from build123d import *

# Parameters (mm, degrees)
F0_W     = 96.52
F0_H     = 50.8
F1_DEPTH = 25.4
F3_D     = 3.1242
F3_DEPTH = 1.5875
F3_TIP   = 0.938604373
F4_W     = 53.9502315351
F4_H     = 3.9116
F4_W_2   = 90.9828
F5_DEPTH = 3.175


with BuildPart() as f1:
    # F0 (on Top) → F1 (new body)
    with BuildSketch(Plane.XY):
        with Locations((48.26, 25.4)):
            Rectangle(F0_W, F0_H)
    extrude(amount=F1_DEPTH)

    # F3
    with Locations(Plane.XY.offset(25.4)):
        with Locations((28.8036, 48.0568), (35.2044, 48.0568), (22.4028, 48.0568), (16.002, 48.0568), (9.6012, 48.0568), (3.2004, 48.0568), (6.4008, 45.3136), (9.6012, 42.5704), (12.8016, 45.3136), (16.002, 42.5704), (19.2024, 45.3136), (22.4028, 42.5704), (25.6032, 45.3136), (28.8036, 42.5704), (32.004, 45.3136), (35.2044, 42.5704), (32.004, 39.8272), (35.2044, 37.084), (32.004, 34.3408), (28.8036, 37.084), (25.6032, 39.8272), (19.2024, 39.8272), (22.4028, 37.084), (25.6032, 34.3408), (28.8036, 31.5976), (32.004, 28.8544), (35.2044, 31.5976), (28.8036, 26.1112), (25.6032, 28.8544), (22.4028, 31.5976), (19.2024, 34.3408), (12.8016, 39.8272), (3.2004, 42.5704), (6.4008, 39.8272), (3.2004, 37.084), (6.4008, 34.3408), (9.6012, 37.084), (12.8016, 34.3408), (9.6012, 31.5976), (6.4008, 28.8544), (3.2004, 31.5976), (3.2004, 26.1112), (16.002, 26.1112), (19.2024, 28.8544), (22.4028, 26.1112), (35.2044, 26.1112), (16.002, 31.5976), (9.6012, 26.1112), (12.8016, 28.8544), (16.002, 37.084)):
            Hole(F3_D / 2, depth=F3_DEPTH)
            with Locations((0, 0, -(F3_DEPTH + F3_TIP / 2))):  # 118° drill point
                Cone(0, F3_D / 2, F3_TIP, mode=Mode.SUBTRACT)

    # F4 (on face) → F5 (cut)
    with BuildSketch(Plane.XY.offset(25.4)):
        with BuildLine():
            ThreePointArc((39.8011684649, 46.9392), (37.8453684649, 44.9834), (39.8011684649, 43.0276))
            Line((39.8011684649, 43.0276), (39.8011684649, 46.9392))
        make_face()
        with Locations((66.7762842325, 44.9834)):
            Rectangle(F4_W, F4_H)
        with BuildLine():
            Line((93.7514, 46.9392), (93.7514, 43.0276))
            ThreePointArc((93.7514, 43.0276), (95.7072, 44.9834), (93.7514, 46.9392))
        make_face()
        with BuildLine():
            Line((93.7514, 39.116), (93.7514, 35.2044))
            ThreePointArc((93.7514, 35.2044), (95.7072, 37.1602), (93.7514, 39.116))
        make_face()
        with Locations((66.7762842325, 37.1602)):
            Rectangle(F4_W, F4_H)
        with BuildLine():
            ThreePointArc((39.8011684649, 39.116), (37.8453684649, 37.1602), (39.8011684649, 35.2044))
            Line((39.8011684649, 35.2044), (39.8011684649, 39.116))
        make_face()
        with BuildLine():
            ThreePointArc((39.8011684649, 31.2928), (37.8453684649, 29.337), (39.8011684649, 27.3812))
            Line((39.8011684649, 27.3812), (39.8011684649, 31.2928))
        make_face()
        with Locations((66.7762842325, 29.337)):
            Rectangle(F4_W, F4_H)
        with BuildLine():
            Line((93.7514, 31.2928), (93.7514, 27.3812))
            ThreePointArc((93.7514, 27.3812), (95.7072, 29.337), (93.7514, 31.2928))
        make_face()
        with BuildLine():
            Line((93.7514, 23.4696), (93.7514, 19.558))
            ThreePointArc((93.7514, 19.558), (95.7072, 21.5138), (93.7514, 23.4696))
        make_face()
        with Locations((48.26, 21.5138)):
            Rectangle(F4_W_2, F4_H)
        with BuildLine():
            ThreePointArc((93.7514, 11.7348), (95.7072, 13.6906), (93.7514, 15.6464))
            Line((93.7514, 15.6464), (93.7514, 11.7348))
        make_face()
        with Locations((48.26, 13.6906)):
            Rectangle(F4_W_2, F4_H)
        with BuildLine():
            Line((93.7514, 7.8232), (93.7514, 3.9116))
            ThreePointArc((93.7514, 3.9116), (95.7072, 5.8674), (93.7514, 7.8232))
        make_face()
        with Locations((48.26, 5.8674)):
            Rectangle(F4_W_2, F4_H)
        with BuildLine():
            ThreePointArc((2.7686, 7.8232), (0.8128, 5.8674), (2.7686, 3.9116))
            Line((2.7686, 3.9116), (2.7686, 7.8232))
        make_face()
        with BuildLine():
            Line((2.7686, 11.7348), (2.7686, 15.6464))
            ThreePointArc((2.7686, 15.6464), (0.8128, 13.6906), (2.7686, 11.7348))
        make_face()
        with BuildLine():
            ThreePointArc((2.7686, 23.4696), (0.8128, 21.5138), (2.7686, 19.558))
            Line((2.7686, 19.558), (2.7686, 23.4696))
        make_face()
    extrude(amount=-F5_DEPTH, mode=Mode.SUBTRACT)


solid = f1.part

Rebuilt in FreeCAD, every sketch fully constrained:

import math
import FreeCAD as App
import Part
import Sketcher

V = App.Vector
Q = App.Units.Quantity


def add_polygon(sketch, points):
    """Adds a closed chain of lines whose ends are joined by coincident constraints."""
    first, n = sketch.GeometryCount, len(points)
    for a, b in zip(points, points[1:] + points[:1]):
        sketch.addGeometry(Part.LineSegment(App.Vector(*a, 0), App.Vector(*b, 0)), False)
    for i in range(n):
        sketch.addConstraint(Sketcher.Constraint("Coincident", first + i, 2, first + (i + 1) % n, 1))

doc = App.newDocument("Part")
body = doc.addObject("PartDesign::Body", "Body")

# Sketch on XY plane
sketch1 = doc.addObject("Sketcher::SketchObject", "Sketch")
body.addObject(sketch1)
sketch1.AttachmentSupport = (doc.XY_Plane, [""])
sketch1.MapMode = "FlatFace"
add_polygon(sketch1, [(0, 51), (0, 0), (97, 0), (97, 51)])  # lines 0-3
sketch1.addConstraint(Sketcher.Constraint("Vertical", 0))
sketch1.addConstraint(Sketcher.Constraint("Horizontal", 1))
sketch1.addConstraint(Sketcher.Constraint("Vertical", 2))
sketch1.addConstraint(Sketcher.Constraint("Horizontal", 3))
sketch1.addConstraint(Sketcher.Constraint("Coincident", 0, 2, -1, 1))
sketch1.addConstraint(Sketcher.Constraint("DistanceY", 0, 2, 0, 1, Q("2 in")))
sketch1.addConstraint(Sketcher.Constraint("DistanceX", 1, 1, 1, 2, Q("3.8 in")))
pad1 = doc.addObject("PartDesign::Pad", "Pad")
body.addObject(pad1)
pad1.Profile = sketch1
pad1.Length = Q("1 in")

# Sketch on XY plane
sketch2 = doc.addObject("Sketcher::SketchObject", "Sketch001")
body.addObject(sketch2)
sketch2.AttachmentSupport = (doc.XY_Plane, [""])
sketch2.MapMode = "FlatFace"
sketch2.AttachmentOffset = App.Placement(V(0, 0, 1 * 25.4), App.Rotation())
sketch2.addGeometry(Part.Circle(V(28.8, 48.1, 0), V(0, 0, 1), 1.6), False)
sketch2.addGeometry(Part.Circle(V(35.2, 48.1, 0), V(0, 0, 1), 1.6), False)
sketch2.addGeometry(Part.Circle(V(22.4, 48.1, 0), V(0, 0, 1), 1.6), False)
sketch2.addGeometry(Part.Circle(V(16, 48.1, 0), V(0, 0, 1), 1.6), False)
sketch2.addGeometry(Part.Circle(V(9.6, 48.1, 0), V(0, 0, 1), 1.6), False)
sketch2.addGeometry(Part.Circle(V(3.2, 48.1, 0), V(0, 0, 1), 1.6), False)
sketch2.addGeometry(Part.Circle(V(6.4, 45.3, 0), V(0, 0, 1), 1.6), False)
sketch2.addGeometry(Part.Circle(V(9.6, 42.6, 0), V(0, 0, 1), 1.6), False)
sketch2.addGeometry(Part.Circle(V(12.8, 45.3, 0), V(0, 0, 1), 1.6), False)
sketch2.addGeometry(Part.Circle(V(16, 42.6, 0), V(0, 0, 1), 1.6), False)
sketch2.addGeometry(Part.Circle(V(19.2, 45.3, 0), V(0, 0, 1), 1.6), False)
sketch2.addGeometry(Part.Circle(V(22.4, 42.6, 0), V(0, 0, 1), 1.6), False)
sketch2.addGeometry(Part.Circle(V(25.6, 45.3, 0), V(0, 0, 1), 1.6), False)
sketch2.addGeometry(Part.Circle(V(28.8, 42.6, 0), V(0, 0, 1), 1.6), False)
sketch2.addGeometry(Part.Circle(V(32, 45.3, 0), V(0, 0, 1), 1.6), False)
sketch2.addGeometry(Part.Circle(V(35.2, 42.6, 0), V(0, 0, 1), 1.6), False)
sketch2.addGeometry(Part.Circle(V(32, 39.8, 0), V(0, 0, 1), 1.6), False)
sketch2.addGeometry(Part.Circle(V(35.2, 37.1, 0), V(0, 0, 1), 1.6), False)
sketch2.addGeometry(Part.Circle(V(32, 34.3, 0), V(0, 0, 1), 1.6), False)
sketch2.addGeometry(Part.Circle(V(28.8, 37.1, 0), V(0, 0, 1), 1.6), False)
sketch2.addGeometry(Part.Circle(V(25.6, 39.8, 0), V(0, 0, 1), 1.6), False)
sketch2.addGeometry(Part.Circle(V(19.2, 39.8, 0), V(0, 0, 1), 1.6), False)
sketch2.addGeometry(Part.Circle(V(22.4, 37.1, 0), V(0, 0, 1), 1.6), False)
sketch2.addGeometry(Part.Circle(V(25.6, 34.3, 0), V(0, 0, 1), 1.6), False)
sketch2.addGeometry(Part.Circle(V(28.8, 31.6, 0), V(0, 0, 1), 1.6), False)
sketch2.addGeometry(Part.Circle(V(32, 28.9, 0), V(0, 0, 1), 1.6), False)
sketch2.addGeometry(Part.Circle(V(35.2, 31.6, 0), V(0, 0, 1), 1.6), False)
sketch2.addGeometry(Part.Circle(V(28.8, 26.1, 0), V(0, 0, 1), 1.6), False)
sketch2.addGeometry(Part.Circle(V(25.6, 28.9, 0), V(0, 0, 1), 1.6), False)
sketch2.addGeometry(Part.Circle(V(22.4, 31.6, 0), V(0, 0, 1), 1.6), False)
sketch2.addGeometry(Part.Circle(V(19.2, 34.3, 0), V(0, 0, 1), 1.6), False)
sketch2.addGeometry(Part.Circle(V(12.8, 39.8, 0), V(0, 0, 1), 1.6), False)
sketch2.addGeometry(Part.Circle(V(3.2, 42.6, 0), V(0, 0, 1), 1.6), False)
sketch2.addGeometry(Part.Circle(V(6.4, 39.8, 0), V(0, 0, 1), 1.6), False)
sketch2.addGeometry(Part.Circle(V(3.2, 37.1, 0), V(0, 0, 1), 1.6), False)
sketch2.addGeometry(Part.Circle(V(6.4, 34.3, 0), V(0, 0, 1), 1.6), False)
sketch2.addGeometry(Part.Circle(V(9.6, 37.1, 0), V(0, 0, 1), 1.6), False)
sketch2.addGeometry(Part.Circle(V(12.8, 34.3, 0), V(0, 0, 1), 1.6), False)
sketch2.addGeometry(Part.Circle(V(9.6, 31.6, 0), V(0, 0, 1), 1.6), False)
sketch2.addGeometry(Part.Circle(V(6.4, 28.9, 0), V(0, 0, 1), 1.6), False)
sketch2.addGeometry(Part.Circle(V(3.2, 31.6, 0), V(0, 0, 1), 1.6), False)
sketch2.addGeometry(Part.Circle(V(3.2, 26.1, 0), V(0, 0, 1), 1.6), False)
sketch2.addGeometry(Part.Circle(V(16, 26.1, 0), V(0, 0, 1), 1.6), False)
sketch2.addGeometry(Part.Circle(V(19.2, 28.9, 0), V(0, 0, 1), 1.6), False)
sketch2.addGeometry(Part.Circle(V(22.4, 26.1, 0), V(0, 0, 1), 1.6), False)
sketch2.addGeometry(Part.Circle(V(35.2, 26.1, 0), V(0, 0, 1), 1.6), False)
sketch2.addGeometry(Part.Circle(V(16, 31.6, 0), V(0, 0, 1), 1.6), False)
sketch2.addGeometry(Part.Circle(V(9.6, 26.1, 0), V(0, 0, 1), 1.6), False)
sketch2.addGeometry(Part.Circle(V(12.8, 28.9, 0), V(0, 0, 1), 1.6), False)
sketch2.addGeometry(Part.Circle(V(16, 37.1, 0), V(0, 0, 1), 1.6), False)
sketch2.addConstraint(Sketcher.Constraint("Equal", 0, 1))
sketch2.addConstraint(Sketcher.Constraint("Equal", 1, 2))
sketch2.addConstraint(Sketcher.Constraint("Equal", 2, 3))
sketch2.addConstraint(Sketcher.Constraint("Equal", 3, 4))
sketch2.addConstraint(Sketcher.Constraint("Equal", 4, 5))
sketch2.addConstraint(Sketcher.Constraint("Equal", 5, 6))
sketch2.addConstraint(Sketcher.Constraint("Equal", 6, 7))
sketch2.addConstraint(Sketcher.Constraint("Equal", 7, 8))
sketch2.addConstraint(Sketcher.Constraint("Equal", 8, 9))
sketch2.addConstraint(Sketcher.Constraint("Equal", 9, 10))
sketch2.addConstraint(Sketcher.Constraint("Equal", 10, 11))
sketch2.addConstraint(Sketcher.Constraint("Equal", 11, 12))
sketch2.addConstraint(Sketcher.Constraint("Equal", 12, 13))
sketch2.addConstraint(Sketcher.Constraint("Equal", 13, 14))
sketch2.addConstraint(Sketcher.Constraint("Equal", 14, 15))
sketch2.addConstraint(Sketcher.Constraint("Equal", 15, 16))
sketch2.addConstraint(Sketcher.Constraint("Equal", 16, 17))
sketch2.addConstraint(Sketcher.Constraint("Equal", 17, 18))
sketch2.addConstraint(Sketcher.Constraint("Equal", 18, 19))
sketch2.addConstraint(Sketcher.Constraint("Equal", 19, 20))
sketch2.addConstraint(Sketcher.Constraint("Equal", 20, 21))
sketch2.addConstraint(Sketcher.Constraint("Equal", 21, 22))
sketch2.addConstraint(Sketcher.Constraint("Equal", 22, 23))
sketch2.addConstraint(Sketcher.Constraint("Equal", 23, 24))
sketch2.addConstraint(Sketcher.Constraint("Equal", 24, 25))
sketch2.addConstraint(Sketcher.Constraint("Equal", 25, 26))
sketch2.addConstraint(Sketcher.Constraint("Equal", 26, 27))
sketch2.addConstraint(Sketcher.Constraint("Equal", 27, 28))
sketch2.addConstraint(Sketcher.Constraint("Equal", 28, 29))
sketch2.addConstraint(Sketcher.Constraint("Equal", 29, 30))
sketch2.addConstraint(Sketcher.Constraint("Equal", 30, 31))
sketch2.addConstraint(Sketcher.Constraint("Equal", 31, 32))
sketch2.addConstraint(Sketcher.Constraint("Equal", 32, 33))
sketch2.addConstraint(Sketcher.Constraint("Equal", 33, 34))
sketch2.addConstraint(Sketcher.Constraint("Equal", 34, 35))
sketch2.addConstraint(Sketcher.Constraint("Equal", 35, 36))
sketch2.addConstraint(Sketcher.Constraint("Equal", 36, 37))
sketch2.addConstraint(Sketcher.Constraint("Equal", 37, 38))
sketch2.addConstraint(Sketcher.Constraint("Equal", 38, 39))
sketch2.addConstraint(Sketcher.Constraint("Equal", 39, 40))
sketch2.addConstraint(Sketcher.Constraint("Equal", 40, 41))
sketch2.addConstraint(Sketcher.Constraint("Equal", 41, 42))
sketch2.addConstraint(Sketcher.Constraint("Equal", 42, 43))
sketch2.addConstraint(Sketcher.Constraint("Equal", 43, 44))
sketch2.addConstraint(Sketcher.Constraint("Equal", 44, 45))
sketch2.addConstraint(Sketcher.Constraint("Equal", 45, 46))
sketch2.addConstraint(Sketcher.Constraint("Equal", 46, 47))
sketch2.addConstraint(Sketcher.Constraint("Equal", 47, 48))
sketch2.addConstraint(Sketcher.Constraint("Equal", 48, 49))
sketch2.addConstraint(Sketcher.Constraint("Horizontal", 0, 3, 1, 3))
sketch2.addConstraint(Sketcher.Constraint("Horizontal", 1, 3, 2, 3))
sketch2.addConstraint(Sketcher.Constraint("Horizontal", 2, 3, 3, 3))
sketch2.addConstraint(Sketcher.Constraint("Horizontal", 3, 3, 4, 3))
sketch2.addConstraint(Sketcher.Constraint("Horizontal", 4, 3, 5, 3))
sketch2.addConstraint(Sketcher.Constraint("Horizontal", 6, 3, 8, 3))
sketch2.addConstraint(Sketcher.Constraint("Horizontal", 7, 3, 9, 3))
sketch2.addConstraint(Sketcher.Constraint("Horizontal", 8, 3, 10, 3))
sketch2.addConstraint(Sketcher.Constraint("Horizontal", 9, 3, 11, 3))
sketch2.addConstraint(Sketcher.Constraint("Horizontal", 10, 3, 12, 3))
sketch2.addConstraint(Sketcher.Constraint("Horizontal", 11, 3, 13, 3))
sketch2.addConstraint(Sketcher.Constraint("Horizontal", 12, 3, 14, 3))
sketch2.addConstraint(Sketcher.Constraint("Horizontal", 13, 3, 15, 3))
sketch2.addConstraint(Sketcher.Constraint("Horizontal", 17, 3, 19, 3))
sketch2.addConstraint(Sketcher.Constraint("Horizontal", 16, 3, 20, 3))
sketch2.addConstraint(Sketcher.Constraint("Horizontal", 20, 3, 21, 3))
sketch2.addConstraint(Sketcher.Constraint("Horizontal", 19, 3, 22, 3))
sketch2.addConstraint(Sketcher.Constraint("Horizontal", 18, 3, 23, 3))
sketch2.addConstraint(Sketcher.Constraint("Horizontal", 24, 3, 26, 3))
sketch2.addConstraint(Sketcher.Constraint("Horizontal", 25, 3, 28, 3))
sketch2.addConstraint(Sketcher.Constraint("Horizontal", 26, 3, 29, 3))
sketch2.addConstraint(Sketcher.Constraint("Horizontal", 23, 3, 30, 3))
sketch2.addConstraint(Sketcher.Constraint("Horizontal", 21, 3, 31, 3))
sketch2.addConstraint(Sketcher.Constraint("Horizontal", 15, 3, 32, 3))
sketch2.addConstraint(Sketcher.Constraint("Horizontal", 31, 3, 33, 3))
sketch2.addConstraint(Sketcher.Constraint("Horizontal", 22, 3, 34, 3))
sketch2.addConstraint(Sketcher.Constraint("Horizontal", 30, 3, 35, 3))
sketch2.addConstraint(Sketcher.Constraint("Horizontal", 34, 3, 36, 3))
sketch2.addConstraint(Sketcher.Constraint("Horizontal", 35, 3, 37, 3))
sketch2.addConstraint(Sketcher.Constraint("Horizontal", 29, 3, 38, 3))
sketch2.addConstraint(Sketcher.Constraint("Horizontal", 28, 3, 39, 3))
sketch2.addConstraint(Sketcher.Constraint("Horizontal", 38, 3, 40, 3))
sketch2.addConstraint(Sketcher.Constraint("Horizontal", 27, 3, 41, 3))
sketch2.addConstraint(Sketcher.Constraint("Horizontal", 41, 3, 42, 3))
sketch2.addConstraint(Sketcher.Constraint("Horizontal", 39, 3, 43, 3))
sketch2.addConstraint(Sketcher.Constraint("Horizontal", 42, 3, 44, 3))
sketch2.addConstraint(Sketcher.Constraint("Horizontal", 44, 3, 45, 3))
sketch2.addConstraint(Sketcher.Constraint("Horizontal", 40, 3, 46, 3))
sketch2.addConstraint(Sketcher.Constraint("Horizontal", 45, 3, 47, 3))
sketch2.addConstraint(Sketcher.Constraint("Horizontal", 43, 3, 48, 3))
sketch2.addConstraint(Sketcher.Constraint("Horizontal", 36, 3, 49, 3))
sketch2.addConstraint(Sketcher.Constraint("Vertical", 4, 3, 7, 3))
sketch2.addConstraint(Sketcher.Constraint("Vertical", 3, 3, 9, 3))
sketch2.addConstraint(Sketcher.Constraint("Vertical", 2, 3, 11, 3))
sketch2.addConstraint(Sketcher.Constraint("Vertical", 0, 3, 13, 3))
sketch2.addConstraint(Sketcher.Constraint("Vertical", 1, 3, 15, 3))
sketch2.addConstraint(Sketcher.Constraint("Vertical", 14, 3, 16, 3))
sketch2.addConstraint(Sketcher.Constraint("Vertical", 15, 3, 17, 3))
sketch2.addConstraint(Sketcher.Constraint("Vertical", 16, 3, 18, 3))
sketch2.addConstraint(Sketcher.Constraint("Vertical", 13, 3, 19, 3))
sketch2.addConstraint(Sketcher.Constraint("Vertical", 12, 3, 20, 3))
sketch2.addConstraint(Sketcher.Constraint("Vertical", 10, 3, 21, 3))
sketch2.addConstraint(Sketcher.Constraint("Vertical", 11, 3, 22, 3))
sketch2.addConstraint(Sketcher.Constraint("Vertical", 20, 3, 23, 3))
sketch2.addConstraint(Sketcher.Constraint("Vertical", 19, 3, 24, 3))
sketch2.addConstraint(Sketcher.Constraint("Vertical", 18, 3, 25, 3))
sketch2.addConstraint(Sketcher.Constraint("Vertical", 17, 3, 26, 3))
sketch2.addConstraint(Sketcher.Constraint("Vertical", 24, 3, 27, 3))
sketch2.addConstraint(Sketcher.Constraint("Vertical", 23, 3, 28, 3))
sketch2.addConstraint(Sketcher.Constraint("Vertical", 22, 3, 29, 3))
sketch2.addConstraint(Sketcher.Constraint("Vertical", 21, 3, 30, 3))
sketch2.addConstraint(Sketcher.Constraint("Vertical", 8, 3, 31, 3))
sketch2.addConstraint(Sketcher.Constraint("Vertical", 5, 3, 32, 3))
sketch2.addConstraint(Sketcher.Constraint("Vertical", 6, 3, 33, 3))
sketch2.addConstraint(Sketcher.Constraint("Vertical", 32, 3, 34, 3))
sketch2.addConstraint(Sketcher.Constraint("Vertical", 33, 3, 35, 3))
sketch2.addConstraint(Sketcher.Constraint("Vertical", 7, 3, 36, 3))
sketch2.addConstraint(Sketcher.Constraint("Vertical", 31, 3, 37, 3))
sketch2.addConstraint(Sketcher.Constraint("Vertical", 36, 3, 38, 3))
sketch2.addConstraint(Sketcher.Constraint("Vertical", 35, 3, 39, 3))
sketch2.addConstraint(Sketcher.Constraint("Vertical", 34, 3, 40, 3))
sketch2.addConstraint(Sketcher.Constraint("Vertical", 40, 3, 41, 3))
sketch2.addConstraint(Sketcher.Constraint("Vertical", 9, 3, 42, 3))
sketch2.addConstraint(Sketcher.Constraint("Vertical", 30, 3, 43, 3))
sketch2.addConstraint(Sketcher.Constraint("Vertical", 29, 3, 44, 3))
sketch2.addConstraint(Sketcher.Constraint("Vertical", 26, 3, 45, 3))
sketch2.addConstraint(Sketcher.Constraint("Vertical", 42, 3, 46, 3))
sketch2.addConstraint(Sketcher.Constraint("Vertical", 38, 3, 47, 3))
sketch2.addConstraint(Sketcher.Constraint("Vertical", 37, 3, 48, 3))
sketch2.addConstraint(Sketcher.Constraint("Vertical", 46, 3, 49, 3))
sketch2.addConstraint(Sketcher.Constraint("Diameter", 0, Q("0.123 in")))
sketch2.addConstraint(Sketcher.Constraint("DistanceX", -1, 1, 3, 3, Q("0.63 in")))
sketch2.addConstraint(Sketcher.Constraint("DistanceX", -1, 1, 14, 3, Q("1.26 in")))
sketch2.addConstraint(Sketcher.Constraint("DistanceY", -1, 1, 17, 3, Q("1.46 in")))
sketch2.addConstraint(Sketcher.Constraint("DistanceX", 5, 3, 1, 3, Q("1.26 in")))
sketch2.addConstraint(Sketcher.Constraint("DistanceX", 6, 3, 2, 3, Q("0.63 in")))
sketch2.addConstraint(Sketcher.Constraint("DistanceX", -1, 1, 0, 3, Q("1.134 in")))
sketch2.addConstraint(Sketcher.Constraint("DistanceY", -1, 1, 0, 3, Q("1.892 in")))
sketch2.addConstraint(Sketcher.Constraint("DistanceX", -1, 1, 1, 3, Q("1.386 in")))
sketch2.addConstraint(Sketcher.Constraint("DistanceX", -1, 1, 2, 3, Q("0.882 in")))
sketch2.addConstraint(Sketcher.Constraint("DistanceX", -1, 1, 4, 3, Q("0.378 in")))
sketch2.addConstraint(Sketcher.Constraint("DistanceY", -1, 1, 6, 3, Q("1.784 in")))
sketch2.addConstraint(Sketcher.Constraint("DistanceY", -1, 1, 7, 3, Q("1.676 in")))
sketch2.addConstraint(Sketcher.Constraint("DistanceX", -1, 1, 8, 3, Q("0.504 in")))
sketch2.addConstraint(Sketcher.Constraint("DistanceX", -1, 1, 10, 3, Q("0.756 in")))
sketch2.addConstraint(Sketcher.Constraint("DistanceX", -1, 1, 12, 3, Q("1.008 in")))
sketch2.addConstraint(Sketcher.Constraint("DistanceY", -1, 1, 16, 3, Q("1.568 in")))
sketch2.addConstraint(Sketcher.Constraint("DistanceY", -1, 1, 18, 3, Q("1.352 in")))
sketch2.addConstraint(Sketcher.Constraint("DistanceY", -1, 1, 24, 3, Q("1.244 in")))
sketch2.addConstraint(Sketcher.Constraint("DistanceY", -1, 1, 25, 3, Q("1.136 in")))
sketch2.addConstraint(Sketcher.Constraint("DistanceY", -1, 1, 27, 3, Q("1.028 in")))
doc.recompute()
hole = doc.addObject("PartDesign::Hole", "Hole")
body.addObject(hole)
hole.Profile = sketch2
hole.ThreadType = "None"
hole.Diameter = Q("0.123 in")
hole.DepthType = "Dimension"
hole.Depth = Q("0.0625 in")
hole.DrillPoint = "Angled"
hole.DrillPointAngle = 118

# Sketch on XY plane
sketch3 = doc.addObject("Sketcher::SketchObject", "Sketch002")
body.addObject(sketch3)
sketch3.AttachmentSupport = (doc.XY_Plane, [""])
sketch3.MapMode = "FlatFace"
sketch3.AttachmentOffset = App.Placement(V(0, 0, 1 * 25.4), App.Rotation())
sketch3.addGeometry(Part.ArcOfCircle(Part.Circle(V(39.8, 45, 0), V(0, 0, 1), 2), math.radians(90), math.radians(270)), False)
sketch3.addGeometry(Part.LineSegment(V(39.8, 43, 0), V(93.8, 43, 0)), False)
sketch3.addGeometry(Part.ArcOfCircle(Part.Circle(V(93.8, 45, 0), V(0, 0, 1), 2), math.radians(-90), math.radians(90)), False)
sketch3.addGeometry(Part.LineSegment(V(93.8, 46.9, 0), V(39.8, 46.9, 0)), False)
sketch3.addGeometry(Part.ArcOfCircle(Part.Circle(V(93.8, 37.2, 0), V(0, 0, 1), 2), math.radians(-90), math.radians(90)), False)
sketch3.addGeometry(Part.LineSegment(V(93.8, 39.1, 0), V(39.8, 39.1, 0)), False)
sketch3.addGeometry(Part.ArcOfCircle(Part.Circle(V(39.8, 37.2, 0), V(0, 0, 1), 2), math.radians(90), math.radians(270)), False)
sketch3.addGeometry(Part.LineSegment(V(39.8, 35.2, 0), V(93.8, 35.2, 0)), False)
sketch3.addGeometry(Part.ArcOfCircle(Part.Circle(V(39.8, 29.3, 0), V(0, 0, 1), 2), math.radians(90), math.radians(270)), False)
sketch3.addGeometry(Part.LineSegment(V(39.8, 27.4, 0), V(93.8, 27.4, 0)), False)
sketch3.addGeometry(Part.ArcOfCircle(Part.Circle(V(93.8, 29.3, 0), V(0, 0, 1), 2), math.radians(-90), math.radians(90)), False)
sketch3.addGeometry(Part.LineSegment(V(93.8, 31.3, 0), V(39.8, 31.3, 0)), False)
sketch3.addGeometry(Part.ArcOfCircle(Part.Circle(V(93.8, 21.5, 0), V(0, 0, 1), 2), math.radians(-90), math.radians(90)), False)
sketch3.addGeometry(Part.LineSegment(V(93.8, 23.5, 0), V(2.8, 23.5, 0)), False)
sketch3.addGeometry(Part.ArcOfCircle(Part.Circle(V(2.8, 21.5, 0), V(0, 0, 1), 2), math.radians(90), math.radians(270)), False)
sketch3.addGeometry(Part.LineSegment(V(2.8, 19.6, 0), V(93.8, 19.6, 0)), False)
sketch3.addGeometry(Part.ArcOfCircle(Part.Circle(V(93.8, 13.7, 0), V(0, 0, 1), 2), math.radians(-90), math.radians(90)), False)
sketch3.addGeometry(Part.LineSegment(V(93.8, 15.6, 0), V(2.8, 15.6, 0)), False)
sketch3.addGeometry(Part.ArcOfCircle(Part.Circle(V(2.8, 13.7, 0), V(0, 0, 1), 2), math.radians(90), math.radians(270)), False)
sketch3.addGeometry(Part.LineSegment(V(2.8, 11.7, 0), V(93.8, 11.7, 0)), False)
sketch3.addGeometry(Part.ArcOfCircle(Part.Circle(V(93.8, 5.9, 0), V(0, 0, 1), 2), math.radians(-90), math.radians(90)), False)
sketch3.addGeometry(Part.LineSegment(V(93.8, 7.8, 0), V(2.8, 7.8, 0)), False)
sketch3.addGeometry(Part.ArcOfCircle(Part.Circle(V(2.8, 5.9, 0), V(0, 0, 1), 2), math.radians(90), math.radians(270)), False)
sketch3.addGeometry(Part.LineSegment(V(2.8, 3.9, 0), V(93.8, 3.9, 0)), False)
sketch3.addConstraint(Sketcher.Constraint("Tangent", 0, 2, 1, 1))
sketch3.addConstraint(Sketcher.Constraint("Tangent", 1, 2, 2, 1))
sketch3.addConstraint(Sketcher.Constraint("Tangent", 2, 2, 3, 1))
sketch3.addConstraint(Sketcher.Constraint("Tangent", 3, 2, 0, 1))
sketch3.addConstraint(Sketcher.Constraint("Tangent", 4, 2, 5, 1))
sketch3.addConstraint(Sketcher.Constraint("Tangent", 5, 2, 6, 1))
sketch3.addConstraint(Sketcher.Constraint("Tangent", 6, 2, 7, 1))
sketch3.addConstraint(Sketcher.Constraint("Tangent", 7, 2, 4, 1))
sketch3.addConstraint(Sketcher.Constraint("Tangent", 8, 2, 9, 1))
sketch3.addConstraint(Sketcher.Constraint("Tangent", 9, 2, 10, 1))
sketch3.addConstraint(Sketcher.Constraint("Tangent", 10, 2, 11, 1))
sketch3.addConstraint(Sketcher.Constraint("Tangent", 11, 2, 8, 1))
sketch3.addConstraint(Sketcher.Constraint("Tangent", 12, 2, 13, 1))
sketch3.addConstraint(Sketcher.Constraint("Tangent", 13, 2, 14, 1))
sketch3.addConstraint(Sketcher.Constraint("Tangent", 14, 2, 15, 1))
sketch3.addConstraint(Sketcher.Constraint("Tangent", 15, 2, 12, 1))
sketch3.addConstraint(Sketcher.Constraint("Tangent", 16, 2, 17, 1))
sketch3.addConstraint(Sketcher.Constraint("Tangent", 17, 2, 18, 1))
sketch3.addConstraint(Sketcher.Constraint("Tangent", 18, 2, 19, 1))
sketch3.addConstraint(Sketcher.Constraint("Tangent", 19, 2, 16, 1))
sketch3.addConstraint(Sketcher.Constraint("Tangent", 20, 2, 21, 1))
sketch3.addConstraint(Sketcher.Constraint("Tangent", 21, 2, 22, 1))
sketch3.addConstraint(Sketcher.Constraint("Tangent", 22, 2, 23, 1))
sketch3.addConstraint(Sketcher.Constraint("Tangent", 23, 2, 20, 1))
sketch3.addConstraint(Sketcher.Constraint("Horizontal", 1))
sketch3.addConstraint(Sketcher.Constraint("Horizontal", 3))
sketch3.addConstraint(Sketcher.Constraint("Horizontal", 5))
sketch3.addConstraint(Sketcher.Constraint("Horizontal", 7))
sketch3.addConstraint(Sketcher.Constraint("Horizontal", 9))
sketch3.addConstraint(Sketcher.Constraint("Horizontal", 11))
sketch3.addConstraint(Sketcher.Constraint("Horizontal", 13))
sketch3.addConstraint(Sketcher.Constraint("Horizontal", 15))
sketch3.addConstraint(Sketcher.Constraint("Horizontal", 17))
sketch3.addConstraint(Sketcher.Constraint("Horizontal", 19))
sketch3.addConstraint(Sketcher.Constraint("Horizontal", 21))
sketch3.addConstraint(Sketcher.Constraint("Horizontal", 23))
sketch3.addConstraint(Sketcher.Constraint("Equal", 2, 4))
sketch3.addConstraint(Sketcher.Constraint("Equal", 6, 8))
sketch3.addConstraint(Sketcher.Constraint("Equal", 10, 12))
sketch3.addConstraint(Sketcher.Constraint("Equal", 14, 16))
sketch3.addConstraint(Sketcher.Constraint("Equal", 18, 20))
sketch3.addConstraint(Sketcher.Constraint("Vertical", 2, 3, 4, 3))
sketch3.addConstraint(Sketcher.Constraint("Vertical", 0, 3, 6, 3))
sketch3.addConstraint(Sketcher.Constraint("Vertical", 6, 3, 8, 3))
sketch3.addConstraint(Sketcher.Constraint("Vertical", 4, 3, 10, 3))
sketch3.addConstraint(Sketcher.Constraint("Vertical", 10, 3, 12, 3))
sketch3.addConstraint(Sketcher.Constraint("Vertical", 12, 3, 16, 3))
sketch3.addConstraint(Sketcher.Constraint("Vertical", 14, 3, 18, 3))
sketch3.addConstraint(Sketcher.Constraint("Vertical", 16, 3, 20, 3))
sketch3.addConstraint(Sketcher.Constraint("Vertical", 18, 3, 22, 3))
sketch3.addConstraint(Sketcher.Constraint("Radius", 0, Q("0.077 in")))
sketch3.addConstraint(Sketcher.Constraint("DistanceX", 13, 2, 13, 1, Q("3.582 in")))
sketch3.addConstraint(Sketcher.Constraint("DistanceY", -1, 1, 4, 2, Q("1.54 in")))
sketch3.addConstraint(Sketcher.Constraint("DistanceY", -1, 1, 14, 2, Q("0.77 in")))
sketch3.addConstraint(Sketcher.Constraint("DistanceY", 20, 3, 2, 3, Q("1.54 in")))
sketch3.addConstraint(Sketcher.Constraint("DistanceY", -1, 1, 0, 3, Q("1.771 in")))
sketch3.addConstraint(Sketcher.Constraint("DistanceX", -1, 1, 2, 3, Q("3.691 in")))
sketch3.addConstraint(Sketcher.Constraint("DistanceY", -1, 1, 8, 3, Q("1.155 in")))
sketch3.addConstraint(Sketcher.Constraint("DistanceY", -1, 1, 16, 3, Q("0.539 in")))
sketch3.addConstraint(Sketcher.Constraint("DistanceX", 1, 1, 1, 2, 53.950232))
pocket1 = doc.addObject("PartDesign::Pocket", "Pocket")
body.addObject(pocket1)
pocket1.Profile = sketch3
pocket1.Length = Q("0.125 in")

doc.recompute()
